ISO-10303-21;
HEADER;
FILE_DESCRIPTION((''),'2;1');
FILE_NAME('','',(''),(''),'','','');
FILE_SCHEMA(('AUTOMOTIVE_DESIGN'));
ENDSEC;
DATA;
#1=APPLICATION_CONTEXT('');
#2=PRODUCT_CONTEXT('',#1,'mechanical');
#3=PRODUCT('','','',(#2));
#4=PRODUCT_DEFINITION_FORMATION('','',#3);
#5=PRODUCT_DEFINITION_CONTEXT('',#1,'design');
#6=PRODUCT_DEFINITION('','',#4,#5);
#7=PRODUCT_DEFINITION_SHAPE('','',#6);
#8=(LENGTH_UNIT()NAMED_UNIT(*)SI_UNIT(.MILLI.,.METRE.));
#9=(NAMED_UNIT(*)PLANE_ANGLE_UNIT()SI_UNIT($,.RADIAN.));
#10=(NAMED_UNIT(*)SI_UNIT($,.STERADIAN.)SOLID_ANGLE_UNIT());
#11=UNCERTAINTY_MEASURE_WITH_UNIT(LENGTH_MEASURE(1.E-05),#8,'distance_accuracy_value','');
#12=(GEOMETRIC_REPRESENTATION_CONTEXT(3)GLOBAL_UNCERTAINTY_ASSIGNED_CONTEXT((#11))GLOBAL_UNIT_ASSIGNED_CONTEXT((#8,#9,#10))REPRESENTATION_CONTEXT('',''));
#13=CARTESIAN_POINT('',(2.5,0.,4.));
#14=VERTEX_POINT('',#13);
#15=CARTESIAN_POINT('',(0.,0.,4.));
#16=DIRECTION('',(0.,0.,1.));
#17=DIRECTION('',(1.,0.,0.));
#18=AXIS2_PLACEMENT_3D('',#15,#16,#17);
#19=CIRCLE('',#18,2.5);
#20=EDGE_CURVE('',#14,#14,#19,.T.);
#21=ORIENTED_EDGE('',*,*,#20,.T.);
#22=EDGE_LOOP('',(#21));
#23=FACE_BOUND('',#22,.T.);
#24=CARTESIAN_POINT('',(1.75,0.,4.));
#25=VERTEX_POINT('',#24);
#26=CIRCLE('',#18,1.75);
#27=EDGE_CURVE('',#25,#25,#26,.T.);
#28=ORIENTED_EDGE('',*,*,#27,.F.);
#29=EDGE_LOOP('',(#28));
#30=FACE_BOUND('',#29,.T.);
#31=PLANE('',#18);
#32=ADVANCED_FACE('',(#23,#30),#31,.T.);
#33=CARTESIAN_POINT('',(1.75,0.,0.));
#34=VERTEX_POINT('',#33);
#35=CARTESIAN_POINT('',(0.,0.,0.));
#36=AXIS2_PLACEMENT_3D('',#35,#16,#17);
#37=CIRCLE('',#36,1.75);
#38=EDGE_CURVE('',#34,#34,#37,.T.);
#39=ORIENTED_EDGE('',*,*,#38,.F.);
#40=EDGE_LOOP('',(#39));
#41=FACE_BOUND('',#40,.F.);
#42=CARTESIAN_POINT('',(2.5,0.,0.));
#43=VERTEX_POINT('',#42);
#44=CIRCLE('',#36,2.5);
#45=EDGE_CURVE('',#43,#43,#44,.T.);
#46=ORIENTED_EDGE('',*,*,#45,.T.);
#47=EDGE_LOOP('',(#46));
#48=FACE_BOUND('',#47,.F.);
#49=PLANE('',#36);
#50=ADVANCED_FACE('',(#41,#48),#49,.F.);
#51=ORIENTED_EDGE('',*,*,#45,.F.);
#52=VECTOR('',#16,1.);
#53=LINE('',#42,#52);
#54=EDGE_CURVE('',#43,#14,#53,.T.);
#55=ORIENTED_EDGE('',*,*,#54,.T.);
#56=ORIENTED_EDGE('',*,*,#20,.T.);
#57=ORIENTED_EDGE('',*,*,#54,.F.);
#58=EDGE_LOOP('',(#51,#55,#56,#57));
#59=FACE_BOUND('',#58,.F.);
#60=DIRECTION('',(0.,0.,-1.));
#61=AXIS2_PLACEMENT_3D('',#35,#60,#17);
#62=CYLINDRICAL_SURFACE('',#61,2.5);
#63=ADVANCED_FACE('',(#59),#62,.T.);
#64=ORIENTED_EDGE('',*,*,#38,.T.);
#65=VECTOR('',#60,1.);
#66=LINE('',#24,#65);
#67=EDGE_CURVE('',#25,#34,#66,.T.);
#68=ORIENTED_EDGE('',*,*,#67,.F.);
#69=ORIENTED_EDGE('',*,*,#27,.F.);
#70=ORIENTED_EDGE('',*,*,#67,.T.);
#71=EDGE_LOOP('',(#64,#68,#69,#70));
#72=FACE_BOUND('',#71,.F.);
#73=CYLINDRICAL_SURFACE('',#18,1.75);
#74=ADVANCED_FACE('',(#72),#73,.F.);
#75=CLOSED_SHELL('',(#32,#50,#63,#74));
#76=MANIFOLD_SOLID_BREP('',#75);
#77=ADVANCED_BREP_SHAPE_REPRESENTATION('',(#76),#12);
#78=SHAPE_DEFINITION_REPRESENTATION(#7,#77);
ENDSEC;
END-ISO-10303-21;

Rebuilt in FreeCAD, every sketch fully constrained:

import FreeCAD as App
import Part
import Sketcher

V = App.Vector

doc = App.newDocument("Part")
body = doc.addObject("PartDesign::Body", "Body")

sketch1 = body.newObject("Sketcher::SketchObject", "Sketch")
sketch1.AttachmentSupport = (doc.getObject("XY_Plane"), [""])
sketch1.MapMode = "FlatFace"
sketch1.addGeometry(Part.Circle(V(0, 0, 0), V(0, 0, 1), 2.5), False)
sketch1.addConstraint([
    Sketcher.Constraint("Coincident", 0, 3, -1, 1),
    Sketcher.Constraint("Diameter", 0, 5.0),
])
pad1 = body.newObject("PartDesign::Pad", "Pad")
pad1.Profile = sketch1
pad1.Length = 4

sketch2 = body.newObject("Sketcher::SketchObject", "Sketch001")
sketch2.AttachmentSupport = (doc.getObject("XY_Plane"), [""])
sketch2.MapMode = "FlatFace"
sketch2.AttachmentOffset = App.Placement(V(0, 0, 4), App.Rotation())
sketch2.addGeometry(Part.Circle(V(0, 0, 0), V(0, 0, 1), 1.8), False)
sketch2.addConstraint([
    Sketcher.Constraint("Coincident", 0, 3, -1, 1),
    Sketcher.Constraint("Diameter", 0, 3.5),
])
pocket1 = body.newObject("PartDesign::Pocket", "Pocket")
pocket1.Profile = sketch2
pocket1.Length = 5

doc.recompute()
